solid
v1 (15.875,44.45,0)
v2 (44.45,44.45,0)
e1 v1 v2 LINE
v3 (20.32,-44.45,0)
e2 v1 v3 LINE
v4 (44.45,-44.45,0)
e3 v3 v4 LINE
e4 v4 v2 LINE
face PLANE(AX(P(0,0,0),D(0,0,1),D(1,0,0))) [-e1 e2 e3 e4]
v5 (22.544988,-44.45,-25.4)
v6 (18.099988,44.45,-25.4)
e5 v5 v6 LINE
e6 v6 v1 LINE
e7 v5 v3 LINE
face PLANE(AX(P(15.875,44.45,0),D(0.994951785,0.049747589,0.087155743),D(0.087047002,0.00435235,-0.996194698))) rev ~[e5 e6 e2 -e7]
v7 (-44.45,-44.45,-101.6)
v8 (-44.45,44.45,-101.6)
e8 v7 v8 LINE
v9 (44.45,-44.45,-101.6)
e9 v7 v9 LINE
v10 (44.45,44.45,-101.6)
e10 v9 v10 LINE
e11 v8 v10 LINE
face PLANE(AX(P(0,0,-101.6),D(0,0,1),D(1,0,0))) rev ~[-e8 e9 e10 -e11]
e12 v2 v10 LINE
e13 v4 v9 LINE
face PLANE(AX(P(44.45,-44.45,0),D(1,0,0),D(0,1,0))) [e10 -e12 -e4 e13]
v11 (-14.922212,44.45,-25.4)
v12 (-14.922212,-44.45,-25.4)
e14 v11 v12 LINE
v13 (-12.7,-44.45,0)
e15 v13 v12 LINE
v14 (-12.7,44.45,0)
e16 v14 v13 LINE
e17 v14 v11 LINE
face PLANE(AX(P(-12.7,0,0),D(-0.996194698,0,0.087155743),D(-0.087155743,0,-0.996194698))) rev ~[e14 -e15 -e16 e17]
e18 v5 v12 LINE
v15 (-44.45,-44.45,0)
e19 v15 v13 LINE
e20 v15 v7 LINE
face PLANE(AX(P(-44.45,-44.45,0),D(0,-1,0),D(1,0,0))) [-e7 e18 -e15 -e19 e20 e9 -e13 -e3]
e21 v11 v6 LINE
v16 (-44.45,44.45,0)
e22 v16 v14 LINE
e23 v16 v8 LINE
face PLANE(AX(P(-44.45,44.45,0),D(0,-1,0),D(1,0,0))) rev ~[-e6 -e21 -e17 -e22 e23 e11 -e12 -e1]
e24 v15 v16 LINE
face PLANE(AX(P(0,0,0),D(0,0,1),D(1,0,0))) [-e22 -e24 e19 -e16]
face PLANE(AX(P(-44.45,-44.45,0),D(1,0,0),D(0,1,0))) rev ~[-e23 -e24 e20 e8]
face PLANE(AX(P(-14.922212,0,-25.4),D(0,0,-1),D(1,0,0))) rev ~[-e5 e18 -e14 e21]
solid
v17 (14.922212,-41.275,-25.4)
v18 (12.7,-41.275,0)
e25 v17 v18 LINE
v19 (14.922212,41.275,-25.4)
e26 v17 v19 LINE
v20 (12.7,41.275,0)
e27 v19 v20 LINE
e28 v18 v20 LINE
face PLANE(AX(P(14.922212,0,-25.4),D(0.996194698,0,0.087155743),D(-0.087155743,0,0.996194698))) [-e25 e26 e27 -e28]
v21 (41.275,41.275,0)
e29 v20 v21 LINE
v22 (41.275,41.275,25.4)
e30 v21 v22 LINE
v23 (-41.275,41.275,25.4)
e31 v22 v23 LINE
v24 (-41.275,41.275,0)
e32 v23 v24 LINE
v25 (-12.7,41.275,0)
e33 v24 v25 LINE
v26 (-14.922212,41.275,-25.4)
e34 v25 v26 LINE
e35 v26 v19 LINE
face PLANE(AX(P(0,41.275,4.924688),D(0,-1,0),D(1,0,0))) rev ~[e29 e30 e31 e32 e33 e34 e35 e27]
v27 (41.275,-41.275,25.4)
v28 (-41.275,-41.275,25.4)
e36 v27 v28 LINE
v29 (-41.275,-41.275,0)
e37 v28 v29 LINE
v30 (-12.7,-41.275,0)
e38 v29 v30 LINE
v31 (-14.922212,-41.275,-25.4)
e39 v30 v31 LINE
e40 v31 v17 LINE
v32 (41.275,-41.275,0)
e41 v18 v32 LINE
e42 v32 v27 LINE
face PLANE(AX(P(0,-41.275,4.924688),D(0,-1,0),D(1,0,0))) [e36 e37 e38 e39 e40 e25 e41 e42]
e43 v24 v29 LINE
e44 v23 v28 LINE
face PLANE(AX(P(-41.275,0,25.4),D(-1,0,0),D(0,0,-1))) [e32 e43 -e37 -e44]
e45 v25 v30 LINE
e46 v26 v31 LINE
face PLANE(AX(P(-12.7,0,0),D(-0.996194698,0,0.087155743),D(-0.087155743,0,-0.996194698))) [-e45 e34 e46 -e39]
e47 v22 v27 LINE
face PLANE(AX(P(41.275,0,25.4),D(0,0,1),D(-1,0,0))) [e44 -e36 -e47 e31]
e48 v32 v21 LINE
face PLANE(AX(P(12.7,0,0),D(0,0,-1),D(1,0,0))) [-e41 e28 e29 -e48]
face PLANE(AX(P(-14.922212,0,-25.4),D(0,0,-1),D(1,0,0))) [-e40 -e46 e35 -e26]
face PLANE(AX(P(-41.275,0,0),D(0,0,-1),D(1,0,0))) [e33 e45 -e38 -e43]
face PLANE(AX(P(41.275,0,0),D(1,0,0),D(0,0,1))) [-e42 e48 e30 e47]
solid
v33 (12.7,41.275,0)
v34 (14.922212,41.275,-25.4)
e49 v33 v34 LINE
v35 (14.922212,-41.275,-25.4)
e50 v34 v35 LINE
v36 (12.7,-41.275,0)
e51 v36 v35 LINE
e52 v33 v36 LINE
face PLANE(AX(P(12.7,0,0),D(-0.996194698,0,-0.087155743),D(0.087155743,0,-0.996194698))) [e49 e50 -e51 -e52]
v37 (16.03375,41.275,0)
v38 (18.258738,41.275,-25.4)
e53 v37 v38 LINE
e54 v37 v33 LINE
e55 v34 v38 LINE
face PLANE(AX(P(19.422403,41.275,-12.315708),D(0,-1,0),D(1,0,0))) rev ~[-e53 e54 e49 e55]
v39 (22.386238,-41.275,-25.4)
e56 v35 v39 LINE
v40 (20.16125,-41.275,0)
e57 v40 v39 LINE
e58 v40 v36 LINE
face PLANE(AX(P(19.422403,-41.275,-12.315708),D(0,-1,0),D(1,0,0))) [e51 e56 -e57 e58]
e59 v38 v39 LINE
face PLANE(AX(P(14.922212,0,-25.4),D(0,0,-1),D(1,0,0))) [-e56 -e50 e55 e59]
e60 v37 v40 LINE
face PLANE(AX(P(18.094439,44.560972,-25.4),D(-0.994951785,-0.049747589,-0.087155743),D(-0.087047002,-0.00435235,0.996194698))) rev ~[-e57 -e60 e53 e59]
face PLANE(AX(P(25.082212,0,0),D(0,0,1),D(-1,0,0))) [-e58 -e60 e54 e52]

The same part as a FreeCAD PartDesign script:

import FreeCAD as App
import Part
import Sketcher
from FreeCAD import Vector
Q = App.Units.Quantity

doc = App.newDocument("Part")
body = doc.addObject("PartDesign::Body", "Body")

# Sketch on XY plane
sketch1 = body.newObject("Sketcher::SketchObject", "Sketch")
sketch1.AttachmentSupport = (doc.getObject("XY_Plane"), [""])
sketch1.MapMode = "FlatFace"
sketch1.addGeometry(Part.LineSegment(Vector(-44, 44, 0), Vector(-44, -44, 0)), False)
sketch1.addGeometry(Part.LineSegment(Vector(-44, -44, 0), Vector(44, -44, 0)), False)
sketch1.addGeometry(Part.LineSegment(Vector(44, -44, 0), Vector(44, 44, 0)), False)
sketch1.addGeometry(Part.LineSegment(Vector(44, 44, 0), Vector(-44, 44, 0)), False)
sketch1.addConstraint(Sketcher.Constraint("Coincident", 0, 2, 1, 1))
sketch1.addConstraint(Sketcher.Constraint("Coincident", 1, 2, 2, 1))
sketch1.addConstraint(Sketcher.Constraint("Coincident", 2, 2, 3, 1))
sketch1.addConstraint(Sketcher.Constraint("Coincident", 3, 2, 0, 1))
sketch1.addConstraint(Sketcher.Constraint("Vertical", 0))
sketch1.addConstraint(Sketcher.Constraint("Horizontal", 1))
sketch1.addConstraint(Sketcher.Constraint("Vertical", 2))
sketch1.addConstraint(Sketcher.Constraint("Horizontal", 3))
sketch1.addConstraint(Sketcher.Constraint("Symmetric", 0, 2, 2, 2, -1, 1))
sketch1.addConstraint(Sketcher.Constraint("Equal", 3, 0))
sketch1.addConstraint(Sketcher.Constraint("DistanceX", 1, 1, 1, 2, Q("3.5 in")))
pad1 = body.newObject("PartDesign::Pad", "Pad")
pad1.Profile = sketch1
pad1.Length = Q("4 in")
pad1.Reversed = True

# Sketch on XZ plane
sketch2 = body.newObject("Sketcher::SketchObject", "Sketch001")
sketch2.AttachmentSupport = (doc.getObject("XZ_Plane"), [""])
sketch2.MapMode = "FlatFace"
sketch2.addGeometry(Part.LineSegment(Vector(10, 0, 0), Vector(-13, 0, 0)), False)
sketch2.addGeometry(Part.LineSegment(Vector(-13, 0, 0), Vector(-15, -25, 0)), False)
sketch2.addGeometry(Part.LineSegment(Vector(-15, -25, 0), Vector(10, -25, 0)), False)
sketch2.addGeometry(Part.LineSegment(Vector(10, -25, 0), Vector(10, 0, 0)), False)
sketch2.addConstraint(Sketcher.Constraint("Coincident", 0, 2, 1, 1))
sketch2.addConstraint(Sketcher.Constraint("Coincident", 1, 2, 2, 1))
sketch2.addConstraint(Sketcher.Constraint("Coincident", 2, 2, 3, 1))
sketch2.addConstraint(Sketcher.Constraint("Coincident", 3, 2, 0, 1))
sketch2.addConstraint(Sketcher.Constraint("Horizontal", 0))
sketch2.addConstraint(Sketcher.Constraint("Horizontal", 2))
sketch2.addConstraint(Sketcher.Constraint("Vertical", 3))
sketch2.addConstraint(Sketcher.Constraint("PointOnObject", 0, 2, -1))
sketch2.addConstraint(Sketcher.Constraint("DistanceY", 3, 1, 3, 2, Q("1 in")))
sketch2.addConstraint(Sketcher.Constraint("DistanceX", 0, 2, 0, 1, Q("0.9 in")))
sketch2.addConstraint(Sketcher.Constraint("Angle", 1, Q("-95 deg")))
sketch2.addConstraint(Sketcher.Constraint("DistanceX", 0, 2, -1, 1, Q("0.5 in")))
pocket1 = body.newObject("PartDesign::Pocket", "Pocket")
pocket1.Profile = sketch2
pocket1.Length = Q("4 in")
pocket1.Midplane = True

# Sketch on an angled plane
sketch3 = body.newObject("Sketcher::SketchObject", "Sketch002")
sketch3.Placement = App.Placement(Vector(-2.177369, 43.547382, 0), App.Rotation(Vector(-0.998752339, -0.049937617, 0), Vector(0, 0, 1), Vector(-0.049937617, 0.998752339, 0), "ZXY"))
sketch3.addGeometry(Part.LineSegment(Vector(-18, 0, 0), Vector(-20, -25, 0)), False)
sketch3.addGeometry(Part.LineSegment(Vector(-20, -25, 0), Vector(0, -25, 0)), False)
sketch3.addGeometry(Part.LineSegment(Vector(0, -25, 0), Vector(0, 0, 0)), False)
sketch3.addGeometry(Part.LineSegment(Vector(0, 0, 0), Vector(-18, 0, 0)), False)
sketch3.addConstraint(Sketcher.Constraint("Coincident", 0, 2, 1, 1))
sketch3.addConstraint(Sketcher.Constraint("Coincident", 1, 2, 2, 1))
sketch3.addConstraint(Sketcher.Constraint("Coincident", 2, 2, 3, 1))
sketch3.addConstraint(Sketcher.Constraint("Coincident", 3, 2, 0, 1))
sketch3.addConstraint(Sketcher.Constraint("Horizontal", 1))
sketch3.addConstraint(Sketcher.Constraint("Vertical", 2))
sketch3.addConstraint(Sketcher.Constraint("Horizontal", 3))
sketch3.addConstraint(Sketcher.Constraint("PointOnObject", 2, 2, -1))
sketch3.addConstraint(Sketcher.Constraint("DistanceY", 2, 1, 2, 2, Q("1 in")))
sketch3.addConstraint(Sketcher.Constraint("DistanceX", 3, 2, 3, 1, Q("0.7 in")))
sketch3.addConstraint(Sketcher.Constraint("Angle", 0, Q("-95 deg")))
sketch3.addConstraint(Sketcher.Constraint("DistanceX", 1, 2, -1, 1, 0.29492))
pocket2 = body.newObject("PartDesign::Pocket", "Pocket001")
pocket2.Profile = sketch3
pocket2.Length = Q("8 in")
pocket2.Midplane = True
body2 = doc.addObject("PartDesign::Body", "Body001")

# Sketch on XZ plane
sketch4 = body2.newObject("Sketcher::SketchObject", "Sketch003")
sketch4.AttachmentSupport = (doc.getObject("XZ_Plane001"), [""])
sketch4.MapMode = "FlatFace"
sketch4.addGeometry(Part.LineSegment(Vector(41, 0, 0), Vector(41, 25, 0)), False)
sketch4.addGeometry(Part.LineSegment(Vector(41, 25, 0), Vector(-41, 25, 0)), False)
sketch4.addGeometry(Part.LineSegment(Vector(-41, 25, 0), Vector(-41, 0, 0)), False)
sketch4.addGeometry(Part.LineSegment(Vector(-41, 0, 0), Vector(-13, 0, 0)), False)
sketch4.addGeometry(Part.LineSegment(Vector(-13, 0, 0), Vector(-15, -25, 0)), False)
sketch4.addGeometry(Part.LineSegment(Vector(-15, -25, 0), Vector(15, -25, 0)), False)
sketch4.addGeometry(Part.LineSegment(Vector(15, -25, 0), Vector(13, 0, 0)), False)
sketch4.addGeometry(Part.LineSegment(Vector(13, 0, 0), Vector(41, 0, 0)), False)
sketch4.addConstraint(Sketcher.Constraint("Coincident", 0, 2, 1, 1))
sketch4.addConstraint(Sketcher.Constraint("Coincident", 1, 2, 2, 1))
sketch4.addConstraint(Sketcher.Constraint("Coincident", 2, 2, 3, 1))
sketch4.addConstraint(Sketcher.Constraint("Coincident", 3, 2, 4, 1))
sketch4.addConstraint(Sketcher.Constraint("Coincident", 4, 2, 5, 1))
sketch4.addConstraint(Sketcher.Constraint("Coincident", 5, 2, 6, 1))
sketch4.addConstraint(Sketcher.Constraint("Coincident", 6, 2, 7, 1))
sketch4.addConstraint(Sketcher.Constraint("Coincident", 7, 2, 0, 1))
sketch4.addConstraint(Sketcher.Constraint("Vertical", 0))
sketch4.addConstraint(Sketcher.Constraint("Horizontal", 1))
sketch4.addConstraint(Sketcher.Constraint("Vertical", 2))
sketch4.addConstraint(Sketcher.Constraint("Horizontal", 3))
sketch4.addConstraint(Sketcher.Constraint("Horizontal", 5))
sketch4.addConstraint(Sketcher.Constraint("Horizontal", 7))
sketch4.addConstraint(Sketcher.Constraint("Symmetric", 3, 2, 6, 2, -1, 1))
sketch4.addConstraint(Sketcher.Constraint("Symmetric", 2, 2, 7, 2, -2))
sketch4.addConstraint(Sketcher.Constraint("Equal", 4, 6))
sketch4.addConstraint(Sketcher.Constraint("DistanceY", 0, 1, 0, 2, Q("1 in")))
sketch4.addConstraint(Sketcher.Constraint("DistanceY", 4, 2, -1, 1, Q("1 in")))
sketch4.addConstraint(Sketcher.Constraint("Angle", 4, Q("-95 deg")))
sketch4.addConstraint(Sketcher.Constraint("DistanceX", 3, 2, 6, 2, Q("1 in")))
sketch4.addConstraint(Sketcher.Constraint("DistanceX", 1, 2, 1, 1, Q("3.25 in")))
pad2 = body2.newObject("PartDesign::Pad", "Pad001")
pad2.Profile = sketch4
pad2.Length = Q("3.25 in")
pad2.Midplane = True
body3 = doc.addObject("PartDesign::Body", "Body002")

# Sketch on XZ plane
sketch5 = body3.newObject("Sketcher::SketchObject", "Sketch004")
sketch5.AttachmentSupport = (doc.getObject("XZ_Plane002"), [""])
sketch5.MapMode = "FlatFace"
sketch5.addGeometry(Part.LineSegment(Vector(25, 0, 0), Vector(13, 0, 0)), False)
sketch5.addGeometry(Part.LineSegment(Vector(13, 0, 0), Vector(15, -25, 0)), False)
sketch5.addGeometry(Part.LineSegment(Vector(15, -25, 0), Vector(25, -25, 0)), False)
sketch5.addGeometry(Part.LineSegment(Vector(25, -25, 0), Vector(25, 0, 0)), False)
sketch5.addConstraint(Sketcher.Constraint("Coincident", 0, 2, 1, 1))
sketch5.addConstraint(Sketcher.Constraint("Coincident", 1, 2, 2, 1))
sketch5.addConstraint(Sketcher.Constraint("Coincident", 2, 2, 3, 1))
sketch5.addConstraint(Sketcher.Constraint("Coincident", 3, 2, 0, 1))
sketch5.addConstraint(Sketcher.Constraint("Horizontal", 0))
sketch5.addConstraint(Sketcher.Constraint("Horizontal", 2))
sketch5.addConstraint(Sketcher.Constraint("Vertical", 3))
sketch5.addConstraint(Sketcher.Constraint("PointOnObject", 0, 2, -1))
sketch5.addConstraint(Sketcher.Constraint("DistanceY", 3, 1, 3, 2, Q("1 in")))
sketch5.addConstraint(Sketcher.Constraint("DistanceX", 2, 1, 2, 2, Q("0.4 in")))
sketch5.addConstraint(Sketcher.Constraint("Angle", 1, Q("-85 deg")))
sketch5.addConstraint(Sketcher.Constraint("DistanceX", -1, 1, 0, 2, Q("0.5 in")))
pad3 = body3.newObject("PartDesign::Pad", "Pad002")
pad3.Profile = sketch5
pad3.Length = Q("3.25 in")
pad3.Midplane = True

# Sketch on an angled plane
sketch6 = body3.newObject("Sketcher::SketchObject", "Sketch005")
sketch6.Placement = App.Placement(Vector(-2.177369, 43.547382, 0), App.Rotation(Vector(-0.998752339, -0.049937617, 0), Vector(0, 0, 1), Vector(-0.049937617, 0.998752339, 0), "ZXY"))
sketch6.addGeometry(Part.LineSegment(Vector(-20, -25, 0), Vector(-18, 3, 0)), False)
sketch6.addGeometry(Part.LineSegment(Vector(-18, 3, 0), Vector(-33, 3, 0)), False)
sketch6.addGeometry(Part.LineSegment(Vector(-33, 3, 0), Vector(-33, -25, 0)), False)
sketch6.addGeometry(Part.LineSegment(Vector(-33, -25, 0), Vector(-20, -25, 0)), False)
sketch6.addConstraint(Sketcher.Constraint("Coincident", 0, 2, 1, 1))
sketch6.addConstraint(Sketcher.Constraint("Coincident", 1, 2, 2, 1))
sketch6.addConstraint(Sketcher.Constraint("Coincident", 2, 2, 3, 1))
sketch6.addConstraint(Sketcher.Constraint("Coincident", 3, 2, 0, 1))
sketch6.addConstraint(Sketcher.Constraint("Horizontal", 1))
sketch6.addConstraint(Sketcher.Constraint("Vertical", 2))
sketch6.addConstraint(Sketcher.Constraint("Horizontal", 3))
sketch6.addConstraint(Sketcher.Constraint("DistanceX", 3, 1, 3, 2, Q("0.5 in")))
sketch6.addConstraint(Sketcher.Constraint("DistanceY", 2, 2, 2, 1, Q("1.1 in")))
sketch6.addConstraint(Sketcher.Constraint("DistanceY", 2, 2, -1, 1, Q("1 in")))
sketch6.addConstraint(Sketcher.Constraint("Angle", 0, Q("85 deg")))
sketch6.addConstraint(Sketcher.Constraint("DistanceX", 0, 2, -1, 1, 17.852699))
pocket3 = body3.newObject("PartDesign::Pocket", "Pocket002")
pocket3.Profile = sketch6
pocket3.Length = Q("8 in")
pocket3.Midplane = True

doc.recompute()
